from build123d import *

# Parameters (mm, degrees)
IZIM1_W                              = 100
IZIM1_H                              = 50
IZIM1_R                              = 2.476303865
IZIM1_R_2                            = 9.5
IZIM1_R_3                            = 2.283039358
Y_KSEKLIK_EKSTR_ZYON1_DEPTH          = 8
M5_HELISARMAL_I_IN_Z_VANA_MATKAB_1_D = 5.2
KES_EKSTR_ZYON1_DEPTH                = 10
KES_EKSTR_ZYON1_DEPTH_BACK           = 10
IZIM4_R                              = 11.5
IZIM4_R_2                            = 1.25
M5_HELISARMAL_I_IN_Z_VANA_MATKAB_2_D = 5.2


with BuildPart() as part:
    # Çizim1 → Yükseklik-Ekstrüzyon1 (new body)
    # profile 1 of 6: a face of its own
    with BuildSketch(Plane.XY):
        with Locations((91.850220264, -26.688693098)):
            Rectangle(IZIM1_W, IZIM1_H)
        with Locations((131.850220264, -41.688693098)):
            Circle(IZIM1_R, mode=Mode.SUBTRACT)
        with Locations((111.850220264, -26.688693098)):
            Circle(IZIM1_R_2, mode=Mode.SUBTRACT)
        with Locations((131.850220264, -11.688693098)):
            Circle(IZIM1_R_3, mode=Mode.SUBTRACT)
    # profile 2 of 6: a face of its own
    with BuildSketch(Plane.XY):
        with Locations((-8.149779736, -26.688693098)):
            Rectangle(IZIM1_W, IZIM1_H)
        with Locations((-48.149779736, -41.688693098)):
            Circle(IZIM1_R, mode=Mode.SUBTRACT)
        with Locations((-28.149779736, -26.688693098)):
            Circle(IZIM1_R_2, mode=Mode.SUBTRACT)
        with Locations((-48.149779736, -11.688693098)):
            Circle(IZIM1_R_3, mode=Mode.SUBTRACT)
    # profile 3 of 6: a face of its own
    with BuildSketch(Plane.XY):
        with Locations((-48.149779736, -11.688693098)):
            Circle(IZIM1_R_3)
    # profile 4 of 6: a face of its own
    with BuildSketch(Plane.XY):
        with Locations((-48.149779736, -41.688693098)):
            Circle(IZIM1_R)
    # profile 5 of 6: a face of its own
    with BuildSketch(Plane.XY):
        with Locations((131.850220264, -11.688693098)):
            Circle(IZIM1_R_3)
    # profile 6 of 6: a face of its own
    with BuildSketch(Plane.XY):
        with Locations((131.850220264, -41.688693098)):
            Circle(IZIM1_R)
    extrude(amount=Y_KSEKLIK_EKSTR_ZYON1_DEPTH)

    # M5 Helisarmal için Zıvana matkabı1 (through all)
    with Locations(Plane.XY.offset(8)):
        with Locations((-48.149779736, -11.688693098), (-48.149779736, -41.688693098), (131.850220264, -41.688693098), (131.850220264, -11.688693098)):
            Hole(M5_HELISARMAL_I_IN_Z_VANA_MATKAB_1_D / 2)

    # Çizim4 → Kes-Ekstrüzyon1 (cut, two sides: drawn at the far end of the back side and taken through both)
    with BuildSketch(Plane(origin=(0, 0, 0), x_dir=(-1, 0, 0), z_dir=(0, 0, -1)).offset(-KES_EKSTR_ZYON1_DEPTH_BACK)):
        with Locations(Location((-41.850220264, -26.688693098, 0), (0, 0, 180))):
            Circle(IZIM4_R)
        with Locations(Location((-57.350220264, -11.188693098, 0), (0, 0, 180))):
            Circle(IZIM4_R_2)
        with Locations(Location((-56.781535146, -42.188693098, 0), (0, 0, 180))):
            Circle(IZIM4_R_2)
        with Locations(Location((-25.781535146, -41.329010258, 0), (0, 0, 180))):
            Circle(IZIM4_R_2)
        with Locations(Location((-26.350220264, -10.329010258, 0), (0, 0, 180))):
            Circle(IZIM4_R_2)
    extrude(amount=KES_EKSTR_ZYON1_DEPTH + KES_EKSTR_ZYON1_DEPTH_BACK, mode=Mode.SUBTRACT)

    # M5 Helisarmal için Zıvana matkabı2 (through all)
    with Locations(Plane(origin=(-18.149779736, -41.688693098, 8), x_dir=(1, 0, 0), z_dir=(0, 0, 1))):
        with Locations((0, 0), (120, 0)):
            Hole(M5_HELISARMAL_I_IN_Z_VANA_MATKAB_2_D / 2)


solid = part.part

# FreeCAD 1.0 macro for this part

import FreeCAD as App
import Part
import Sketcher
from FreeCAD import Vector
Q = App.Units.Quantity


def add_polygon(sketch, points):
    """Adds a closed chain of lines whose ends are joined by coincident constraints."""
    first, n = sketch.GeometryCount, len(points)
    for a, b in zip(points, points[1:] + points[:1]):
        sketch.addGeometry(Part.LineSegment(App.Vector(*a, 0), App.Vector(*b, 0)), False)
    for i in range(n):
        sketch.addConstraint(Sketcher.Constraint("Coincident", first + i, 2, first + (i + 1) % n, 1))

doc = App.newDocument("Part")
body = doc.addObject("PartDesign::Body", "Body")

# Sketch on XY plane
sketch1 = body.newObject("Sketcher::SketchObject", "Sketch")
sketch1.AttachmentSupport = (doc.getObject("XY_Plane"), [""])
sketch1.MapMode = "FlatFace"
add_polygon(sketch1, [(142, -52), (142, -2), (-58, -2), (-58, -52)])  # lines 0-3
sketch1.addGeometry(Part.Circle(Vector(112, -27, 0), Vector(0, 0, 1), 10), False)  # 4
sketch1.addGeometry(Part.Circle(Vector(-28, -27, 0), Vector(0, 0, 1), 10), False)  # 5
sketch1.addConstraint(Sketcher.Constraint("Vertical", 0))
sketch1.addConstraint(Sketcher.Constraint("Horizontal", 1))
sketch1.addConstraint(Sketcher.Constraint("Vertical", 2))
sketch1.addConstraint(Sketcher.Constraint("Horizontal", 3))
sketch1.addConstraint(Sketcher.Constraint("Equal", 4, 5))
sketch1.addConstraint(Sketcher.Constraint("Horizontal", 4, 3, 5, 3))
sketch1.addConstraint(Sketcher.Constraint("Diameter", 4, Q("19 mm")))
sketch1.addConstraint(Sketcher.Constraint("DistanceX", 1, 2, 1, 1, Q("200 mm")))
sketch1.addConstraint(Sketcher.Constraint("DistanceY", 0, 1, 0, 2, Q("50 mm")))
sketch1.addConstraint(Sketcher.Constraint("DistanceX", 5, 3, 4, 3, Q("140 mm")))
sketch1.addConstraint(Sketcher.Constraint("DistanceX", 4, 3, 0, 2, Q("30 mm")))
sketch1.addConstraint(Sketcher.Constraint("DistanceY", 4, 3, 0, 2, Q("25 mm")))
sketch1.addConstraint(Sketcher.Constraint("DistanceX", -1, 1, 4, 3, Q("111.85022 mm")))
sketch1.addConstraint(Sketcher.Constraint("DistanceY", 4, 3, -1, 1, Q("26.688693 mm")))
pad1 = body.newObject("PartDesign::Pad", "Pad")
pad1.Profile = sketch1
pad1.Length = 8

# Sketch on XY plane
sketch2 = body.newObject("Sketcher::SketchObject", "Sketch001")
sketch2.AttachmentSupport = (doc.getObject("XY_Plane"), [""])
sketch2.MapMode = "FlatFace"
sketch2.AttachmentOffset = App.Placement(Vector(0, 0, 8), App.Rotation())
sketch2.addGeometry(Part.Circle(Vector(-48.1, -11.7, 0), Vector(0, 0, 1), 2.6), False)
sketch2.addGeometry(Part.Circle(Vector(-48.1, -41.7, 0), Vector(0, 0, 1), 2.6), False)
sketch2.addGeometry(Part.Circle(Vector(131.9, -41.7, 0), Vector(0, 0, 1), 2.6), False)
sketch2.addGeometry(Part.Circle(Vector(131.9, -11.7, 0), Vector(0, 0, 1), 2.6), False)
sketch2.addConstraint(Sketcher.Constraint("Equal", 0, 1))
sketch2.addConstraint(Sketcher.Constraint("Equal", 1, 2))
sketch2.addConstraint(Sketcher.Constraint("Equal", 2, 3))
sketch2.addConstraint(Sketcher.Constraint("Horizontal", 1, 3, 2, 3))
sketch2.addConstraint(Sketcher.Constraint("Horizontal", 0, 3, 3, 3))
sketch2.addConstraint(Sketcher.Constraint("Vertical", 0, 3, 1, 3))
sketch2.addConstraint(Sketcher.Constraint("Vertical", 2, 3, 3, 3))
sketch2.addConstraint(Sketcher.Constraint("Diameter", 0, Q("5.2 mm")))
sketch2.addConstraint(Sketcher.Constraint("DistanceY", 1, 3, 0, 3, Q("30 mm")))
sketch2.addConstraint(Sketcher.Constraint("DistanceX", 1, 3, 2, 3, Q("180 mm")))
sketch2.addConstraint(Sketcher.Constraint("DistanceX", 0, 3, -1, 1, Q("48.14978 mm")))
sketch2.addConstraint(Sketcher.Constraint("DistanceY", 0, 3, -1, 1, Q("11.688693 mm")))
doc.recompute()
hole = body.newObject("PartDesign::Hole", "Hole")
hole.Profile = sketch2
hole.ThreadType = "None"
hole.Diameter = 5.2
hole.DepthType = "ThroughAll"

# Sketch on XY plane
sketch3 = body.newObject("Sketcher::SketchObject", "Sketch002")
sketch3.AttachmentSupport = (doc.getObject("XY_Plane"), [""])
sketch3.MapMode = "FlatFace"
sketch3.addGeometry(Part.Circle(Vector(41.9, -26.7, 0), Vector(0, 0, 1), 11.5), False)
sketch3.addGeometry(Part.Circle(Vector(57.4, -11.2, 0), Vector(0, 0, 1), 1.2), False)
sketch3.addGeometry(Part.Circle(Vector(56.8, -42.2, 0), Vector(0, 0, 1), 1.2), False)
sketch3.addGeometry(Part.Circle(Vector(25.8, -41.3, 0), Vector(0, 0, 1), 1.2), False)
sketch3.addGeometry(Part.Circle(Vector(26.4, -10.3, 0), Vector(0, 0, 1), 1.2), False)
sketch3.addConstraint(Sketcher.Constraint("Equal", 1, 2))
sketch3.addConstraint(Sketcher.Constraint("Equal", 2, 3))
sketch3.addConstraint(Sketcher.Constraint("Equal", 3, 4))
sketch3.addConstraint(Sketcher.Constraint("Diameter", 0, Q("23 mm")))
sketch3.addConstraint(Sketcher.Constraint("Diameter", 1, Q("2.5 mm")))
sketch3.addConstraint(Sketcher.Constraint("DistanceY", 2, 3, 1, 3, Q("31 mm")))
sketch3.addConstraint(Sketcher.Constraint("DistanceX", 3, 3, 2, 3, Q("31 mm")))
sketch3.addConstraint(Sketcher.Constraint("DistanceY", 3, 3, 4, 3, Q("31 mm")))
sketch3.addConstraint(Sketcher.Constraint("DistanceX", 4, 3, 1, 3, Q("31 mm")))
sketch3.addConstraint(Sketcher.Constraint("DistanceX", 0, 3, 1, 3, Q("15.5 mm")))
sketch3.addConstraint(Sketcher.Constraint("DistanceY", 0, 3, 1, 3, Q("15.5 mm")))
sketch3.addConstraint(Sketcher.Constraint("DistanceX", -1, 1, 0, 3, Q("41.85022 mm")))
sketch3.addConstraint(Sketcher.Constraint("DistanceY", 3, 3, -1, 1, Q("41.32901 mm")))
sketch3.addConstraint(Sketcher.Constraint("DistanceY", 0, 3, -1, 1, Q("26.688693 mm")))
sketch3.addConstraint(Sketcher.Constraint("DistanceX", -1, 1, 2, 3, Q("56.781535 mm")))
pocket1 = body.newObject("PartDesign::Pocket", "Pocket")
pocket1.Profile = sketch3
pocket1.Type = "ThroughAll"
pocket1.Midplane = True

# Sketch on XY plane
sketch4 = body.newObject("Sketcher::SketchObject", "Sketch003")
sketch4.AttachmentSupport = (doc.getObject("XY_Plane"), [""])
sketch4.MapMode = "FlatFace"
sketch4.AttachmentOffset = App.Placement(Vector(0, 0, 8), App.Rotation())
sketch4.addGeometry(Part.Circle(Vector(-18.1, -41.7, 0), Vector(0, 0, 1), 2.6), False)
sketch4.addGeometry(Part.Circle(Vector(101.9, -41.7, 0), Vector(0, 0, 1), 2.6), False)
sketch4.addConstraint(Sketcher.Constraint("Equal", 0, 1))
sketch4.addConstraint(Sketcher.Constraint("Horizontal", 0, 3, 1, 3))
sketch4.addConstraint(Sketcher.Constraint("Diameter", 0, Q("5.2 mm")))
sketch4.addConstraint(Sketcher.Constraint("DistanceX", 0, 3, 1, 3, Q("120 mm")))
sketch4.addConstraint(Sketcher.Constraint("DistanceX", 0, 3, -1, 1, Q("18.14978 mm")))
sketch4.addConstraint(Sketcher.Constraint("DistanceY", 0, 3, -1, 1, Q("41.688693 mm")))
doc.recompute()
hole2 = body.newObject("PartDesign::Hole", "Hole001")
hole2.Profile = sketch4
hole2.ThreadType = "None"
hole2.Diameter = 5.2
hole2.DepthType = "ThroughAll"

doc.recompute()
